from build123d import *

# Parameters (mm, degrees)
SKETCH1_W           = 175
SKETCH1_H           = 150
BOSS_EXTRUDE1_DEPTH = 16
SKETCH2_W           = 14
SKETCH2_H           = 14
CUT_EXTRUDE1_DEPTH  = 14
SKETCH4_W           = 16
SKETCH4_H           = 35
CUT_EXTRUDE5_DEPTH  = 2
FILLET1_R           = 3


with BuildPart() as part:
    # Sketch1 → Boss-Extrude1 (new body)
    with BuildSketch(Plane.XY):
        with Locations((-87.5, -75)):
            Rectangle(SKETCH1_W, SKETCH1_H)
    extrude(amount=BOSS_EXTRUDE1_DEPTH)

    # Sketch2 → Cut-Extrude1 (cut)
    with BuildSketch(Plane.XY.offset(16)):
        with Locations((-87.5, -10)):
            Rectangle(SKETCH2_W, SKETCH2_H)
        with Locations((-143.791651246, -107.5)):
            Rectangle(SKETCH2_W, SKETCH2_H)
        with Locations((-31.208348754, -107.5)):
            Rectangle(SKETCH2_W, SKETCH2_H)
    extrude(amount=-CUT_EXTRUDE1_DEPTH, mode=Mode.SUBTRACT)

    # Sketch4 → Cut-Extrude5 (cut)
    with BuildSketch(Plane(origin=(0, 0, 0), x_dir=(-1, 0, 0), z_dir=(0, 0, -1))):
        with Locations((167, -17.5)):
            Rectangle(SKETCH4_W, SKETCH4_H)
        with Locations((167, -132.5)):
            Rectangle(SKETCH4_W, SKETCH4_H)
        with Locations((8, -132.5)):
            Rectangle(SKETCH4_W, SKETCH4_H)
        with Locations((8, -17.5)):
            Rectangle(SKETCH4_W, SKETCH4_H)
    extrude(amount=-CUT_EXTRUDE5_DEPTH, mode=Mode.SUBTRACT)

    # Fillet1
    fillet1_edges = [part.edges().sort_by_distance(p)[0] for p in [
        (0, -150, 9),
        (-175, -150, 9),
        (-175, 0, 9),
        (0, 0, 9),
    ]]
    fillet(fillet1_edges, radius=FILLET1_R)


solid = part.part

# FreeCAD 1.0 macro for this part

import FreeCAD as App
import Part
import Sketcher


def edges_at(feature, points):
    """Names of the edges that pass closest to the given points."""
    edges = feature.Shape.Edges
    near = lambda p: min(range(len(edges)), key=lambda i: edges[i].distToShape(Part.Vertex(*p))[0])
    return sorted({f"Edge{near(p) + 1}" for p in points})


def add_polygon(sketch, points):
    """Adds a closed chain of lines whose ends are joined by coincident constraints."""
    first, n = sketch.GeometryCount, len(points)
    for a, b in zip(points, points[1:] + points[:1]):
        sketch.addGeometry(Part.LineSegment(App.Vector(*a, 0), App.Vector(*b, 0)), False)
    for i in range(n):
        sketch.addConstraint(Sketcher.Constraint("Coincident", first + i, 2, first + (i + 1) % n, 1))

doc = App.newDocument("Part")
body = doc.addObject("PartDesign::Body", "Body")

# Sketch on XY plane
sketch1 = body.newObject("Sketcher::SketchObject", "Sketch")
sketch1.AttachmentSupport = (doc.getObject("XY_Plane"), [""])
sketch1.MapMode = "FlatFace"
add_polygon(sketch1, [(-175, 0), (-175, -150), (0, -150), (0, 0)])  # lines 0-3
sketch1.addConstraint([
    Sketcher.Constraint("Vertical", 0),
    Sketcher.Constraint("Horizontal", 1),
    Sketcher.Constraint("Vertical", 2),
    Sketcher.Constraint("Horizontal", 3),
    Sketcher.Constraint("Coincident", 2, 2, -1, 1),
    Sketcher.Constraint("DistanceX", 1, 1, 1, 2, 175.0),
    Sketcher.Constraint("DistanceY", 0, 2, 0, 1, 150.0),
])
pad1 = body.newObject("PartDesign::Pad", "Pad")
pad1.Profile = sketch1
pad1.Length = 16

# Sketch on XY plane
sketch2 = body.newObject("Sketcher::SketchObject", "Sketch001")
sketch2.AttachmentSupport = (doc.getObject("XY_Plane"), [""])
sketch2.MapMode = "FlatFace"
sketch2.AttachmentOffset = App.Placement(App.Vector(0, 0, 16), App.Rotation())
add_polygon(sketch2, [(-94.5, -3), (-94.5, -17), (-80.5, -17), (-80.5, -3)])  # lines 0-3
add_polygon(sketch2, [(-150.791651, -100.5), (-150.791651, -114.5), (-136.791651, -114.5), (-136.791651, -100.5)])  # lines 4-7
add_polygon(sketch2, [(-38.208349, -100.5), (-38.208349, -114.5), (-24.208349, -114.5), (-24.208349, -100.5)])  # lines 8-11
sketch2.addConstraint([
    Sketcher.Constraint("Vertical", 0),
    Sketcher.Constraint("Horizontal", 1),
    Sketcher.Constraint("Vertical", 2),
    Sketcher.Constraint("Horizontal", 3),
    Sketcher.Constraint("Vertical", 4),
    Sketcher.Constraint("Horizontal", 5),
    Sketcher.Constraint("Vertical", 6),
    Sketcher.Constraint("Horizontal", 7),
    Sketcher.Constraint("Vertical", 8),
    Sketcher.Constraint("Horizontal", 9),
    Sketcher.Constraint("Vertical", 10),
    Sketcher.Constraint("Horizontal", 11),
    Sketcher.Constraint("Horizontal", 5, 2, 8, 2),
    Sketcher.Constraint("Horizontal", 7, 2, 10, 2),
    Sketcher.Constraint("Equal", 3, 5),
    Sketcher.Constraint("Equal", 7, 9),
    Sketcher.Constraint("Equal", 11, 0),
    Sketcher.Constraint("Equal", 2, 4),
    Sketcher.Constraint("DistanceX", 1, 1, 1, 2, 14.0),
    Sketcher.Constraint("DistanceY", 0, 2, -1, 1, 17.0),
    Sketcher.Constraint("DistanceX", 0, 2, -1, 1, 94.5),
    Sketcher.Constraint("DistanceY", 4, 2, -1, 1, 114.5),
    Sketcher.Constraint("DistanceX", 4, 2, -1, 1, 150.791651),
    Sketcher.Constraint("DistanceX", 8, 2, -1, 1, 38.208349),
])
pocket1 = body.newObject("PartDesign::Pocket", "Pocket")
pocket1.Profile = sketch2
pocket1.Length = 14

# Sketch on XY plane
sketch3 = body.newObject("Sketcher::SketchObject", "Sketch002")
sketch3.AttachmentSupport = (doc.getObject("XY_Plane"), [""])
sketch3.MapMode = "FlatFace"
add_polygon(sketch3, [(-159, 0), (-159, -35), (-175, -35), (-175, 0)])  # lines 0-3
add_polygon(sketch3, [(-159, -115), (-159, -150), (-175, -150), (-175, -115)])  # lines 4-7
add_polygon(sketch3, [(0, -115), (0, -150), (-16, -150), (-16, -115)])  # lines 8-11
add_polygon(sketch3, [(0, 0), (0, -35), (-16, -35), (-16, 0)])  # lines 12-15
sketch3.addConstraint([
    Sketcher.Constraint("Vertical", 0),
    Sketcher.Constraint("Horizontal", 1),
    Sketcher.Constraint("Vertical", 2),
    Sketcher.Constraint("Horizontal", 3),
    Sketcher.Constraint("Vertical", 4),
    Sketcher.Constraint("Horizontal", 5),
    Sketcher.Constraint("Vertical", 6),
    Sketcher.Constraint("Horizontal", 7),
    Sketcher.Constraint("Vertical", 8),
    Sketcher.Constraint("Horizontal", 9),
    Sketcher.Constraint("Vertical", 10),
    Sketcher.Constraint("Horizontal", 11),
    Sketcher.Constraint("Vertical", 12),
    Sketcher.Constraint("Horizontal", 13),
    Sketcher.Constraint("Vertical", 14),
    Sketcher.Constraint("Horizontal", 15),
    Sketcher.Constraint("Coincident", 15, 2, -1, 1),
    Sketcher.Constraint("PointOnObject", 2, 2, -1),
    Sketcher.Constraint("PointOnObject", 8, 2, -2),
    Sketcher.Constraint("Horizontal", 5, 2, 8, 2),
    Sketcher.Constraint("Horizontal", 7, 2, 10, 2),
    Sketcher.Constraint("Horizontal", 1, 2, 12, 2),
    Sketcher.Constraint("Vertical", 3, 2, 4, 2),
    Sketcher.Constraint("Vertical", 2, 2, 5, 2),
    Sketcher.Constraint("Vertical", 10, 2, 13, 2),
    Sketcher.Constraint("Equal", 7, 9),
    Sketcher.Constraint("Equal", 2, 4),
    Sketcher.Constraint("DistanceX", 1, 2, 1, 1, 16.0),
    Sketcher.Constraint("DistanceY", 0, 2, 0, 1, 35.0),
    Sketcher.Constraint("DistanceX", 0, 2, -1, 1, 159.0),
    Sketcher.Constraint("DistanceY", 4, 2, -1, 1, 150.0),
])
pocket2 = body.newObject("PartDesign::Pocket", "Pocket001")
pocket2.Profile = sketch3
pocket2.Length = 2
pocket2.Reversed = True
doc.recompute()

fillet = body.newObject("PartDesign::Fillet", "Fillet")
fillet.Base = (pocket2, edges_at(pocket2, [
    (0, -150, 9),
    (-175, -150, 9),
    (-175, 0, 9),
    (0, 0, 9),
]))
fillet.Radius = 3

doc.recompute()
